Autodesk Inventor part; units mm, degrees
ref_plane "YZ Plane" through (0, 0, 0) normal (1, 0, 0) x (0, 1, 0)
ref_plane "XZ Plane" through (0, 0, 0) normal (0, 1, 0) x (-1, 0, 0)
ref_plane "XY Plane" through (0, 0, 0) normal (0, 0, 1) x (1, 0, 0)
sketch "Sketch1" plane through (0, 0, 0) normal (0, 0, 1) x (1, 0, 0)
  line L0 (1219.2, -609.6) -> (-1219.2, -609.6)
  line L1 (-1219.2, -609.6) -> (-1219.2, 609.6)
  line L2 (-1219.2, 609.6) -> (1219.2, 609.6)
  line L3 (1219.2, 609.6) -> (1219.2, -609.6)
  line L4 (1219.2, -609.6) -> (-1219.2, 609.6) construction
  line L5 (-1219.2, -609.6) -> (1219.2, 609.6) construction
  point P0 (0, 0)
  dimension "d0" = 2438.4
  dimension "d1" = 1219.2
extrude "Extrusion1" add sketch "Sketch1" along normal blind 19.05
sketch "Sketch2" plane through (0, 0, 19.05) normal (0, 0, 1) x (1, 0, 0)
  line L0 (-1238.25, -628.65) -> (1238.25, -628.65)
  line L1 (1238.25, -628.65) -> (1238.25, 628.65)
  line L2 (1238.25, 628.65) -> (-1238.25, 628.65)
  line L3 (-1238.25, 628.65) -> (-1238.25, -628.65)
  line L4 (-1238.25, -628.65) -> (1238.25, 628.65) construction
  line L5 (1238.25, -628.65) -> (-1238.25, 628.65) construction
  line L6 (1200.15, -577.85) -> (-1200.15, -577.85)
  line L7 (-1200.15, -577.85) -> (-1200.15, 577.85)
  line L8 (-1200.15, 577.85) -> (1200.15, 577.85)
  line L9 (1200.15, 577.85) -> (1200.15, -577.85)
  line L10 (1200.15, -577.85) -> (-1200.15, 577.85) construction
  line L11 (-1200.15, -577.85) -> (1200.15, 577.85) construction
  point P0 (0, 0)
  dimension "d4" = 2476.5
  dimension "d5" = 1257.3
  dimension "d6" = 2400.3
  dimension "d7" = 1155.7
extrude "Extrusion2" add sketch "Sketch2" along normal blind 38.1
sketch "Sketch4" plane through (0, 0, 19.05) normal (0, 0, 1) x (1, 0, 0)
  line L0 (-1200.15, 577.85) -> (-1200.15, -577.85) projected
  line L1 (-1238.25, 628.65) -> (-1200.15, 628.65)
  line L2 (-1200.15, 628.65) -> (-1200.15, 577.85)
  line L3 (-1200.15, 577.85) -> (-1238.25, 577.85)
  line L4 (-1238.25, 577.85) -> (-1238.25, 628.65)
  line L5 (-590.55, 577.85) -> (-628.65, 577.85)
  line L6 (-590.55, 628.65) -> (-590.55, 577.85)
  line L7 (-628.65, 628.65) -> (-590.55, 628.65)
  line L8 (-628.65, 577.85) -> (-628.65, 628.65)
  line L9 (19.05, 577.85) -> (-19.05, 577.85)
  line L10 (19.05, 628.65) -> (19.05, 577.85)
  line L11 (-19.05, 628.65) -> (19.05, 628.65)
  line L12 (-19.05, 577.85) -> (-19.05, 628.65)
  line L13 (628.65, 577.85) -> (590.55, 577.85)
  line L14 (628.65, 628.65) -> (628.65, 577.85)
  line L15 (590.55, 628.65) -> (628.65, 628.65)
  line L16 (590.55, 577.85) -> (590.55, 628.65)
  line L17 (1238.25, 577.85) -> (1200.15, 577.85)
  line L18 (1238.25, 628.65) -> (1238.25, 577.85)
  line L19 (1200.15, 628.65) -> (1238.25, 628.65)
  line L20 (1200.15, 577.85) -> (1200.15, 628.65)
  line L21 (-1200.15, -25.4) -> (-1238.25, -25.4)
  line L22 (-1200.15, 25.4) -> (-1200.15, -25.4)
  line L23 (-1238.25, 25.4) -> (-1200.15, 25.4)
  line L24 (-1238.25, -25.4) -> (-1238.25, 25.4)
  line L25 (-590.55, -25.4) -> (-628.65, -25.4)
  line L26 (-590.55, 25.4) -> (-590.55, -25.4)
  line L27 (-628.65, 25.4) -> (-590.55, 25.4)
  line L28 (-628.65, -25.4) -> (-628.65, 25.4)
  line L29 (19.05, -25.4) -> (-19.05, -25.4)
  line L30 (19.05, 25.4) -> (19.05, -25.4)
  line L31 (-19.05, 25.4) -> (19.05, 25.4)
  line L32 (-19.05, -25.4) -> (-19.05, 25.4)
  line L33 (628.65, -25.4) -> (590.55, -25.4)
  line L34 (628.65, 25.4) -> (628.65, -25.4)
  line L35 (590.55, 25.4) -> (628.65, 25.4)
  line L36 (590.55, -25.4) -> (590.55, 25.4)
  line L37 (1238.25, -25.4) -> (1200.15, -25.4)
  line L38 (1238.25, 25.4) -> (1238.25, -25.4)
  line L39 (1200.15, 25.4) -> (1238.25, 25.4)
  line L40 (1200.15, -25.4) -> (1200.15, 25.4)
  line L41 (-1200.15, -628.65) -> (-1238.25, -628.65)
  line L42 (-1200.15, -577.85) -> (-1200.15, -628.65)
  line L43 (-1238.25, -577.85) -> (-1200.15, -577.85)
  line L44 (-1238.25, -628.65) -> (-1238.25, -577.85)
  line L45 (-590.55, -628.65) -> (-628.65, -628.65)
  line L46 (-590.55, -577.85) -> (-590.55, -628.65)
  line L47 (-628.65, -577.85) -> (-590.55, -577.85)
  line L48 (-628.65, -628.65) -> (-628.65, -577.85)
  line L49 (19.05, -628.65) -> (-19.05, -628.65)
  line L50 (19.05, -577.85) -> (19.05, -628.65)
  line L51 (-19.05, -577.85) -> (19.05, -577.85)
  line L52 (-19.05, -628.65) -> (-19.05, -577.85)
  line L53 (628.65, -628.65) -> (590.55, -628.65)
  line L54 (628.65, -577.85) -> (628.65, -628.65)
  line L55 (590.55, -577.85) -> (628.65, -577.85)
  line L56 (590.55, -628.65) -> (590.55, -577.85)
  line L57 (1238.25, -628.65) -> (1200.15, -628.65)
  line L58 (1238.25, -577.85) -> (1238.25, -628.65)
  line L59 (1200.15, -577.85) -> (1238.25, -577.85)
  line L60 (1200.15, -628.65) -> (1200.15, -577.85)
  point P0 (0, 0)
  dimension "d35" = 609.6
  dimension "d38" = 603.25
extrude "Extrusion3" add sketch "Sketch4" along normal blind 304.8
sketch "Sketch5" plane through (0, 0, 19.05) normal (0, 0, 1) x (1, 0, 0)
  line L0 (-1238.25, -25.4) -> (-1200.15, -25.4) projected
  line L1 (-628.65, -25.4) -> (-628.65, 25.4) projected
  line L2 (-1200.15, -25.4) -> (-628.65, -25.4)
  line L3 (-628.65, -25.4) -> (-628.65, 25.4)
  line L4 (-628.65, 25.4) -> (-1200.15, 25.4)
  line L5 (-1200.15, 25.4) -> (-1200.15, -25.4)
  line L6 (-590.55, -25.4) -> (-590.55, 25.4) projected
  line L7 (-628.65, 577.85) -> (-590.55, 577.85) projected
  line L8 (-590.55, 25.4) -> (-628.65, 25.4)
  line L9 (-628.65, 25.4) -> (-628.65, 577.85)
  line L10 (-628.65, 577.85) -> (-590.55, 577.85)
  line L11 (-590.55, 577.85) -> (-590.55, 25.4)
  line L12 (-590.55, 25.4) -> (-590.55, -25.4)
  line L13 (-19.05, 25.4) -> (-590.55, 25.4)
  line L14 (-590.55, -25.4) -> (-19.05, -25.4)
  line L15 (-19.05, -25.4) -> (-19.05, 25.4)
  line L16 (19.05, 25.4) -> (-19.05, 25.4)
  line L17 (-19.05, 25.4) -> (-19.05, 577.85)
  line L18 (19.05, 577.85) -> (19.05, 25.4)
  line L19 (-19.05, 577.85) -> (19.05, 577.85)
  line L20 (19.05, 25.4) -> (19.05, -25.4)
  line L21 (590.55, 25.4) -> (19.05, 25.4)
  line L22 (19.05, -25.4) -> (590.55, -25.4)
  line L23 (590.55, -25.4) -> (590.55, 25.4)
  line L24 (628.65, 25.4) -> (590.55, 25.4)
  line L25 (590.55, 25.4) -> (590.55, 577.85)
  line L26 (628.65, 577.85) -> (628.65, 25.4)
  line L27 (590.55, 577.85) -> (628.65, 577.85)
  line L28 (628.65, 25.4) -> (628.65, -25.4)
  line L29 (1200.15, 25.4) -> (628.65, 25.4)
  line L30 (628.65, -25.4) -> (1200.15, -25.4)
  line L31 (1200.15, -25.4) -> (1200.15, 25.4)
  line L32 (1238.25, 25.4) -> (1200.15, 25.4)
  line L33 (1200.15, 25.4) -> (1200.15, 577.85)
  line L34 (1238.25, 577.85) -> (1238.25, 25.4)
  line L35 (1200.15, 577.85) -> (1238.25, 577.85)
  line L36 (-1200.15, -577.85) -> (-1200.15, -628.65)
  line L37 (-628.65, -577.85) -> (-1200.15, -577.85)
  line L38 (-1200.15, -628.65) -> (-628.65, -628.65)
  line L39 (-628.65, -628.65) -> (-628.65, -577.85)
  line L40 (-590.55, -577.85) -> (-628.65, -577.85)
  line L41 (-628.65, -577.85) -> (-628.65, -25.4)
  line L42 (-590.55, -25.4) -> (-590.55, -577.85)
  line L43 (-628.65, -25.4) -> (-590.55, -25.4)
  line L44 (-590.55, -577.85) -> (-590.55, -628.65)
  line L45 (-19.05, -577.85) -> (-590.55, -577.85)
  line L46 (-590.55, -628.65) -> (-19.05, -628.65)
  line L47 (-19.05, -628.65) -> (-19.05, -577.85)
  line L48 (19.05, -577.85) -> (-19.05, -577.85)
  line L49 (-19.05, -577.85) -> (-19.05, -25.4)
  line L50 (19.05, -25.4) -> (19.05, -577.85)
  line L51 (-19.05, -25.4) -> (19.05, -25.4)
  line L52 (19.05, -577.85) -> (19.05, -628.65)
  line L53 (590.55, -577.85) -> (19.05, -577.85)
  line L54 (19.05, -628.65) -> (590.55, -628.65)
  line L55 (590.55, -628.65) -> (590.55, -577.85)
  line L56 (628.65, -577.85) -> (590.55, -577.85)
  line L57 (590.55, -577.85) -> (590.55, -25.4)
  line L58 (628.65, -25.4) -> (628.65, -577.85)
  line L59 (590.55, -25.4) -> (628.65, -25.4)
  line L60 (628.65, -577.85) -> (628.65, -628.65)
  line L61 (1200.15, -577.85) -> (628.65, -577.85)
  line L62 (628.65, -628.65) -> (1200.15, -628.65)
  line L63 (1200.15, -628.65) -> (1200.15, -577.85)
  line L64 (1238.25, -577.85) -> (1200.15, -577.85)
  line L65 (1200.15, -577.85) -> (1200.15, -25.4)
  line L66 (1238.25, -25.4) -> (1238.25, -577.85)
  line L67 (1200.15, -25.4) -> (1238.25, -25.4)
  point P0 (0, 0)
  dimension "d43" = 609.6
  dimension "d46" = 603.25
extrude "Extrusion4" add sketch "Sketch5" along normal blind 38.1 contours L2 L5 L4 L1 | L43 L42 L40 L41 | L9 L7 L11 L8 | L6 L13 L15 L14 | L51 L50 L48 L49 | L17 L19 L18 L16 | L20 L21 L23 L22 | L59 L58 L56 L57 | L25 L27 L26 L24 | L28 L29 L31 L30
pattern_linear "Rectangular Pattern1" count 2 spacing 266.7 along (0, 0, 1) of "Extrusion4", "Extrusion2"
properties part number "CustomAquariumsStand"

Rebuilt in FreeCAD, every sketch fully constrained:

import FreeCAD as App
import Part
import Sketcher
Q = App.Units.Quantity


def add_polygon(sketch, points):
    """Adds a closed chain of lines whose ends are joined by coincident constraints."""
    first, n = sketch.GeometryCount, len(points)
    for a, b in zip(points, points[1:] + points[:1]):
        sketch.addGeometry(Part.LineSegment(App.Vector(*a, 0), App.Vector(*b, 0)), False)
    for i in range(n):
        sketch.addConstraint(Sketcher.Constraint("Coincident", first + i, 2, first + (i + 1) % n, 1))

doc = App.newDocument("Part")
body = doc.addObject("PartDesign::Body", "Body")

# Sketch on XY plane
sketch1 = body.newObject("Sketcher::SketchObject", "Sketch")
sketch1.AttachmentSupport = (doc.getObject("XY_Plane"), [""])
sketch1.MapMode = "FlatFace"
add_polygon(sketch1, [(-1219, -610), (1219, -610), (1219, 610), (-1219, 610)])  # lines 0-3
sketch1.addConstraint([
    Sketcher.Constraint("Horizontal", 0),
    Sketcher.Constraint("Vertical", 1),
    Sketcher.Constraint("Horizontal", 2),
    Sketcher.Constraint("Vertical", 3),
    Sketcher.Constraint("Symmetric", 0, 2, 2, 2, -1, 1),
    Sketcher.Constraint("DistanceX", 0, 1, 0, 2, Q("96 in")),
    Sketcher.Constraint("DistanceY", 1, 1, 1, 2, Q("48 in")),
])
pad1 = body.newObject("PartDesign::Pad", "Pad")
pad1.Profile = sketch1
pad1.Length = Q("0.75 in")

# Sketch on XY plane
sketch2 = body.newObject("Sketcher::SketchObject", "Sketch001")
sketch2.AttachmentSupport = (doc.getObject("XY_Plane"), [""])
sketch2.MapMode = "FlatFace"
sketch2.AttachmentOffset = App.Placement(App.Vector(0, 0, 0.75 * 25.4), App.Rotation())
add_polygon(sketch2, [(-1238, 629), (-1238, -629), (1238, -629), (1238, 629)])  # lines 0-3
add_polygon(sketch2, [(1200, 578), (1200, -578), (-1200, -578), (-1200, 578)])  # lines 4-7
sketch2.addConstraint([
    Sketcher.Constraint("Vertical", 0),
    Sketcher.Constraint("Horizontal", 1),
    Sketcher.Constraint("Vertical", 2),
    Sketcher.Constraint("Horizontal", 3),
    Sketcher.Constraint("Vertical", 4),
    Sketcher.Constraint("Horizontal", 5),
    Sketcher.Constraint("Vertical", 6),
    Sketcher.Constraint("Horizontal", 7),
    Sketcher.Constraint("Symmetric", 0, 2, 2, 2, -1, 1),
    Sketcher.Constraint("Symmetric", 4, 2, 6, 2, -1, 1),
    Sketcher.Constraint("DistanceX", 1, 1, 1, 2, Q("97.5 in")),
    Sketcher.Constraint("DistanceX", 5, 2, 5, 1, Q("94.5 in")),
    Sketcher.Constraint("DistanceY", 0, 2, 0, 1, Q("49.5 in")),
    Sketcher.Constraint("DistanceY", 4, 2, 4, 1, Q("45.5 in")),
])
pad2 = body.newObject("PartDesign::Pad", "Pad001")
pad2.Profile = sketch2
pad2.Length = Q("1.5 in")

# Sketch on XY plane
sketch3 = body.newObject("Sketcher::SketchObject", "Sketch002")
sketch3.AttachmentSupport = (doc.getObject("XY_Plane"), [""])
sketch3.MapMode = "FlatFace"
sketch3.AttachmentOffset = App.Placement(App.Vector(0, 0, 0.75 * 25.4), App.Rotation())
add_polygon(sketch3, [(-1200, -629), (-1200, -578), (-1238, -578), (-1238, -629)])  # lines 0-3
add_polygon(sketch3, [(-1200, -25), (-1200, 25), (-1238, 25), (-1238, -25)])  # lines 4-7
add_polygon(sketch3, [(-1238, 578), (-1200, 578), (-1200, 629), (-1238, 629)])  # lines 8-11
add_polygon(sketch3, [(-629, 578), (-591, 578), (-591, 629), (-629, 629)])  # lines 12-15
add_polygon(sketch3, [(-19, 578), (19, 578), (19, 629), (-19, 629)])  # lines 16-19
add_polygon(sketch3, [(591, 578), (629, 578), (629, 629), (591, 629)])  # lines 20-23
add_polygon(sketch3, [(1200, 578), (1238, 578), (1238, 629), (1200, 629)])  # lines 24-27
add_polygon(sketch3, [(-629, -25), (-591, -25), (-591, 25), (-629, 25)])  # lines 28-31
add_polygon(sketch3, [(-19, -25), (19, -25), (19, 25), (-19, 25)])  # lines 32-35
add_polygon(sketch3, [(591, -25), (629, -25), (629, 25), (591, 25)])  # lines 36-39
add_polygon(sketch3, [(1200, -25), (1238, -25), (1238, 25), (1200, 25)])  # lines 40-43
add_polygon(sketch3, [(-629, -629), (-591, -629), (-591, -578), (-629, -578)])  # lines 44-47
add_polygon(sketch3, [(-19, -629), (19, -629), (19, -578), (-19, -578)])  # lines 48-51
add_polygon(sketch3, [(591, -629), (629, -629), (629, -578), (591, -578)])  # lines 52-55
add_polygon(sketch3, [(1200, -629), (1238, -629), (1238, -578), (1200, -578)])  # lines 56-59
sketch3.addConstraint([
    Sketcher.Constraint("Vertical", 0),
    Sketcher.Constraint("Horizontal", 1),
    Sketcher.Constraint("Vertical", 2),
    Sketcher.Constraint("Horizontal", 3),
    Sketcher.Constraint("Vertical", 4),
    Sketcher.Constraint("Horizontal", 5),
    Sketcher.Constraint("Vertical", 6),
    Sketcher.Constraint("Horizontal", 7),
    Sketcher.Constraint("Horizontal", 8),
    Sketcher.Constraint("Vertical", 9),
    Sketcher.Constraint("Horizontal", 10),
    Sketcher.Constraint("Vertical", 11),
    Sketcher.Constraint("Horizontal", 12),
    Sketcher.Constraint("Vertical", 13),
    Sketcher.Constraint("Horizontal", 14),
    Sketcher.Constraint("Vertical", 15),
    Sketcher.Constraint("Horizontal", 16),
    Sketcher.Constraint("Vertical", 17),
    Sketcher.Constraint("Horizontal", 18),
    Sketcher.Constraint("Vertical", 19),
    Sketcher.Constraint("Horizontal", 20),
    Sketcher.Constraint("Vertical", 21),
    Sketcher.Constraint("Horizontal", 22),
    Sketcher.Constraint("Vertical", 23),
    Sketcher.Constraint("Horizontal", 24),
    Sketcher.Constraint("Vertical", 25),
    Sketcher.Constraint("Horizontal", 26),
    Sketcher.Constraint("Vertical", 27),
    Sketcher.Constraint("Horizontal", 28),
    Sketcher.Constraint("Vertical", 29),
    Sketcher.Constraint("Horizontal", 30),
    Sketcher.Constraint("Vertical", 31),
    Sketcher.Constraint("Horizontal", 32),
    Sketcher.Constraint("Vertical", 33),
    Sketcher.Constraint("Horizontal", 34),
    Sketcher.Constraint("Vertical", 35),
    Sketcher.Constraint("Horizontal", 36),
    Sketcher.Constraint("Vertical", 37),
    Sketcher.Constraint("Horizontal", 38),
    Sketcher.Constraint("Vertical", 39),
    Sketcher.Constraint("Horizontal", 40),
    Sketcher.Constraint("Vertical", 41),
    Sketcher.Constraint("Horizontal", 42),
    Sketcher.Constraint("Vertical", 43),
    Sketcher.Constraint("Horizontal", 44),
    Sketcher.Constraint("Vertical", 45),
    Sketcher.Constraint("Horizontal", 46),
    Sketcher.Constraint("Vertical", 47),
    Sketcher.Constraint("Horizontal", 48),
    Sketcher.Constraint("Vertical", 49),
    Sketcher.Constraint("Horizontal", 50),
    Sketcher.Constraint("Vertical", 51),
    Sketcher.Constraint("Horizontal", 52),
    Sketcher.Constraint("Vertical", 53),
    Sketcher.Constraint("Horizontal", 54),
    Sketcher.Constraint("Vertical", 55),
    Sketcher.Constraint("Horizontal", 56),
    Sketcher.Constraint("Vertical", 57),
    Sketcher.Constraint("Horizontal", 58),
    Sketcher.Constraint("Vertical", 59),
    Sketcher.Constraint("Symmetric", 1, 2, 24, 2, -1, 1),
    Sketcher.Constraint("Symmetric", 3, 2, 26, 2, -1, 1),
    Sketcher.Constraint("Symmetric", 32, 2, 34, 2, -1, 1),
    Sketcher.Constraint("Symmetric", 30, 2, 36, 2, -1, 1),
    Sketcher.Constraint("Symmetric", 28, 2, 38, 2, -1, 1),
    Sketcher.Constraint("Symmetric", 5, 2, 40, 2, -1, 1),
    Sketcher.Constraint("Symmetric", 7, 2, 42, 2, -1, 1),
    Sketcher.Constraint("Symmetric", 22, 2, 44, 2, -1, 1),
    Sketcher.Constraint("Symmetric", 20, 2, 46, 2, -1, 1),
    Sketcher.Constraint("Symmetric", 18, 2, 48, 2, -1, 1),
    Sketcher.Constraint("Symmetric", 16, 2, 50, 2, -1, 1),
    Sketcher.Constraint("Symmetric", 14, 2, 52, 2, -1, 1),
    Sketcher.Constraint("Symmetric", 12, 2, 54, 2, -1, 1),
    Sketcher.Constraint("Symmetric", 10, 2, 56, 2, -1, 1),
    Sketcher.Constraint("Symmetric", 8, 2, 58, 2, -1, 1),
    Sketcher.Constraint("Symmetric", 15, 2, 20, 2, -2),
    Sketcher.Constraint("Symmetric", 13, 2, 22, 2, -2),
    Sketcher.Constraint("Symmetric", 11, 2, 24, 2, -2),
    Sketcher.Constraint("Symmetric", 9, 2, 26, 2, -2),
    Sketcher.Constraint("Horizontal", 11, 2, 12, 2),
    Sketcher.Constraint("Horizontal", 10, 2, 13, 2),
    Sketcher.Constraint("Horizontal", 15, 2, 16, 2),
    Sketcher.Constraint("Horizontal", 14, 2, 17, 2),
    Sketcher.Constraint("Horizontal", 7, 2, 28, 2),
    Sketcher.Constraint("Horizontal", 5, 2, 29, 2),
    Sketcher.Constraint("Horizontal", 31, 2, 32, 2),
    Sketcher.Constraint("Horizontal", 30, 2, 33, 2),
    Sketcher.Constraint("Vertical", 3, 2, 4, 2),
    Sketcher.Constraint("Vertical", 2, 2, 5, 2),
    Sketcher.Constraint("Vertical", 13, 2, 28, 2),
    Sketcher.Constraint("Vertical", 15, 2, 30, 2),
    Sketcher.Constraint("Vertical", 17, 2, 32, 2),
    Sketcher.Constraint("Vertical", 19, 2, 34, 2),
    Sketcher.Constraint("Equal", 10, 12),
    Sketcher.Constraint("Equal", 14, 16),
    Sketcher.Constraint("Equal", 2, 4),
    Sketcher.Constraint("DistanceX", 8, 2, 12, 2, Q("24 in")),
    Sketcher.Constraint("DistanceX", 12, 2, 16, 2, Q("24 in")),
    Sketcher.Constraint("DistanceY", 0, 1, 0, 2, Q("2 in")),
    Sketcher.Constraint("DistanceY", 0, 2, 4, 2, Q("23.75 in")),
    Sketcher.Constraint("DistanceX", 1, 2, 1, 1, Q("1.5 in")),
])
pad3 = body.newObject("PartDesign::Pad", "Pad002")
pad3.Profile = sketch3
pad3.Length = Q("12 in")

# Sketch on XY plane
sketch4 = body.newObject("Sketcher::SketchObject", "Sketch003")
sketch4.AttachmentSupport = (doc.getObject("XY_Plane"), [""])
sketch4.MapMode = "FlatFace"
sketch4.AttachmentOffset = App.Placement(App.Vector(0, 0, 0.75 * 25.4), App.Rotation())
add_polygon(sketch4, [(-1200, -25), (-629, -25), (-629, 25), (-1200, 25)])  # lines 0-3
add_polygon(sketch4, [(-591, -25), (-629, -25), (-629, -578), (-591, -578)])  # lines 4-7
add_polygon(sketch4, [(-629, 578), (-629, 25), (-591, 25), (-591, 578)])  # lines 8-11
add_polygon(sketch4, [(-591, 25), (-591, -25), (-19, -25), (-19, 25)])  # lines 12-15
add_polygon(sketch4, [(19, -25), (-19, -25), (-19, -578), (19, -578)])  # lines 16-19
add_polygon(sketch4, [(-19, 578), (-19, 25), (19, 25), (19, 578)])  # lines 20-23
add_polygon(sketch4, [(19, 25), (19, -25), (591, -25), (591, 25)])  # lines 24-27
add_polygon(sketch4, [(629, -25), (591, -25), (591, -578), (629, -578)])  # lines 28-31
add_polygon(sketch4, [(591, 578), (591, 25), (629, 25), (629, 578)])  # lines 32-35
add_polygon(sketch4, [(629, 25), (629, -25), (1200, -25), (1200, 25)])  # lines 36-39
sketch4.addConstraint([
    Sketcher.Constraint("Horizontal", 0),
    Sketcher.Constraint("Vertical", 1),
    Sketcher.Constraint("Horizontal", 2),
    Sketcher.Constraint("Vertical", 3),
    Sketcher.Constraint("Horizontal", 4),
    Sketcher.Constraint("Vertical", 5),
    Sketcher.Constraint("Horizontal", 6),
    Sketcher.Constraint("Vertical", 7),
    Sketcher.Constraint("Vertical", 8),
    Sketcher.Constraint("Horizontal", 9),
    Sketcher.Constraint("Vertical", 10),
    Sketcher.Constraint("Horizontal", 11),
    Sketcher.Constraint("Vertical", 12),
    Sketcher.Constraint("Horizontal", 13),
    Sketcher.Constraint("Vertical", 14),
    Sketcher.Constraint("Horizontal", 15),
    Sketcher.Constraint("Horizontal", 16),
    Sketcher.Constraint("Vertical", 17),
    Sketcher.Constraint("Horizontal", 18),
    Sketcher.Constraint("Vertical", 19),
    Sketcher.Constraint("Vertical", 20),
    Sketcher.Constraint("Horizontal", 21),
    Sketcher.Constraint("Vertical", 22),
    Sketcher.Constraint("Horizontal", 23),
    Sketcher.Constraint("Vertical", 24),
    Sketcher.Constraint("Horizontal", 25),
    Sketcher.Constraint("Vertical", 26),
    Sketcher.Constraint("Horizontal", 27),
    Sketcher.Constraint("Horizontal", 28),
    Sketcher.Constraint("Vertical", 29),
    Sketcher.Constraint("Horizontal", 30),
    Sketcher.Constraint("Vertical", 31),
    Sketcher.Constraint("Vertical", 32),
    Sketcher.Constraint("Horizontal", 33),
    Sketcher.Constraint("Vertical", 34),
    Sketcher.Constraint("Horizontal", 35),
    Sketcher.Constraint("Vertical", 36),
    Sketcher.Constraint("Horizontal", 37),
    Sketcher.Constraint("Vertical", 38),
    Sketcher.Constraint("Horizontal", 39),
    Sketcher.Constraint("Coincident", 4, 2, 0, 2),
    Sketcher.Constraint("Coincident", 8, 2, 1, 2),
    Sketcher.Constraint("Coincident", 12, 2, 7, 2),
    Sketcher.Constraint("Coincident", 15, 2, 9, 2),
    Sketcher.Constraint("Coincident", 16, 2, 13, 2),
    Sketcher.Constraint("Coincident", 20, 2, 14, 2),
    Sketcher.Constraint("Coincident", 24, 2, 19, 2),
    Sketcher.Constraint("Coincident", 27, 2, 21, 2),
    Sketcher.Constraint("Coincident", 28, 2, 25, 2),
    Sketcher.Constraint("Coincident", 32, 2, 26, 2),
    Sketcher.Constraint("Coincident", 36, 2, 31, 2),
    Sketcher.Constraint("Coincident", 39, 2, 33, 2),
    Sketcher.Constraint("Symmetric", 14, 2, 19, 2, -1, 1),
    Sketcher.Constraint("Symmetric", 10, 2, 29, 2, -1, 1),
    Sketcher.Constraint("Symmetric", 5, 2, 34, 2, -1, 1),
    Sketcher.Constraint("Horizontal", 6, 2, 17, 2),
    Sketcher.Constraint("Horizontal", 11, 2, 22, 2),
    Sketcher.Constraint("Horizontal", 18, 2, 29, 2),
    Sketcher.Constraint("Equal", 2, 13),
    Sketcher.Constraint("Equal", 11, 16),
    Sketcher.Constraint("Equal", 27, 37),
    Sketcher.Constraint("DistanceX", 3, 2, 6, 2, Q("24 in")),
    Sketcher.Constraint("DistanceY", 1, 1, 1, 2, Q("2 in")),
    Sketcher.Constraint("DistanceY", 5, 2, 1, 2, Q("23.75 in")),
    Sketcher.Constraint("DistanceX", 0, 1, 0, 2, Q("22.5 in")),
])
pad4 = body.newObject("PartDesign::Pad", "Pad003")
pad4.Profile = sketch4
pad4.Length = Q("1.5 in")
doc.recompute()

linearpattern = body.newObject("PartDesign::LinearPattern", "LinearPattern")
linearpattern.Originals = [pad4, pad2]
linearpattern.Direction = (doc.getObject("Z_Axis"), [""])
linearpattern.Mode = "offset"
linearpattern.Offset = Q("10.5 in")
linearpattern.Occurrences = 2
body.Tip = linearpattern

doc.recompute()
